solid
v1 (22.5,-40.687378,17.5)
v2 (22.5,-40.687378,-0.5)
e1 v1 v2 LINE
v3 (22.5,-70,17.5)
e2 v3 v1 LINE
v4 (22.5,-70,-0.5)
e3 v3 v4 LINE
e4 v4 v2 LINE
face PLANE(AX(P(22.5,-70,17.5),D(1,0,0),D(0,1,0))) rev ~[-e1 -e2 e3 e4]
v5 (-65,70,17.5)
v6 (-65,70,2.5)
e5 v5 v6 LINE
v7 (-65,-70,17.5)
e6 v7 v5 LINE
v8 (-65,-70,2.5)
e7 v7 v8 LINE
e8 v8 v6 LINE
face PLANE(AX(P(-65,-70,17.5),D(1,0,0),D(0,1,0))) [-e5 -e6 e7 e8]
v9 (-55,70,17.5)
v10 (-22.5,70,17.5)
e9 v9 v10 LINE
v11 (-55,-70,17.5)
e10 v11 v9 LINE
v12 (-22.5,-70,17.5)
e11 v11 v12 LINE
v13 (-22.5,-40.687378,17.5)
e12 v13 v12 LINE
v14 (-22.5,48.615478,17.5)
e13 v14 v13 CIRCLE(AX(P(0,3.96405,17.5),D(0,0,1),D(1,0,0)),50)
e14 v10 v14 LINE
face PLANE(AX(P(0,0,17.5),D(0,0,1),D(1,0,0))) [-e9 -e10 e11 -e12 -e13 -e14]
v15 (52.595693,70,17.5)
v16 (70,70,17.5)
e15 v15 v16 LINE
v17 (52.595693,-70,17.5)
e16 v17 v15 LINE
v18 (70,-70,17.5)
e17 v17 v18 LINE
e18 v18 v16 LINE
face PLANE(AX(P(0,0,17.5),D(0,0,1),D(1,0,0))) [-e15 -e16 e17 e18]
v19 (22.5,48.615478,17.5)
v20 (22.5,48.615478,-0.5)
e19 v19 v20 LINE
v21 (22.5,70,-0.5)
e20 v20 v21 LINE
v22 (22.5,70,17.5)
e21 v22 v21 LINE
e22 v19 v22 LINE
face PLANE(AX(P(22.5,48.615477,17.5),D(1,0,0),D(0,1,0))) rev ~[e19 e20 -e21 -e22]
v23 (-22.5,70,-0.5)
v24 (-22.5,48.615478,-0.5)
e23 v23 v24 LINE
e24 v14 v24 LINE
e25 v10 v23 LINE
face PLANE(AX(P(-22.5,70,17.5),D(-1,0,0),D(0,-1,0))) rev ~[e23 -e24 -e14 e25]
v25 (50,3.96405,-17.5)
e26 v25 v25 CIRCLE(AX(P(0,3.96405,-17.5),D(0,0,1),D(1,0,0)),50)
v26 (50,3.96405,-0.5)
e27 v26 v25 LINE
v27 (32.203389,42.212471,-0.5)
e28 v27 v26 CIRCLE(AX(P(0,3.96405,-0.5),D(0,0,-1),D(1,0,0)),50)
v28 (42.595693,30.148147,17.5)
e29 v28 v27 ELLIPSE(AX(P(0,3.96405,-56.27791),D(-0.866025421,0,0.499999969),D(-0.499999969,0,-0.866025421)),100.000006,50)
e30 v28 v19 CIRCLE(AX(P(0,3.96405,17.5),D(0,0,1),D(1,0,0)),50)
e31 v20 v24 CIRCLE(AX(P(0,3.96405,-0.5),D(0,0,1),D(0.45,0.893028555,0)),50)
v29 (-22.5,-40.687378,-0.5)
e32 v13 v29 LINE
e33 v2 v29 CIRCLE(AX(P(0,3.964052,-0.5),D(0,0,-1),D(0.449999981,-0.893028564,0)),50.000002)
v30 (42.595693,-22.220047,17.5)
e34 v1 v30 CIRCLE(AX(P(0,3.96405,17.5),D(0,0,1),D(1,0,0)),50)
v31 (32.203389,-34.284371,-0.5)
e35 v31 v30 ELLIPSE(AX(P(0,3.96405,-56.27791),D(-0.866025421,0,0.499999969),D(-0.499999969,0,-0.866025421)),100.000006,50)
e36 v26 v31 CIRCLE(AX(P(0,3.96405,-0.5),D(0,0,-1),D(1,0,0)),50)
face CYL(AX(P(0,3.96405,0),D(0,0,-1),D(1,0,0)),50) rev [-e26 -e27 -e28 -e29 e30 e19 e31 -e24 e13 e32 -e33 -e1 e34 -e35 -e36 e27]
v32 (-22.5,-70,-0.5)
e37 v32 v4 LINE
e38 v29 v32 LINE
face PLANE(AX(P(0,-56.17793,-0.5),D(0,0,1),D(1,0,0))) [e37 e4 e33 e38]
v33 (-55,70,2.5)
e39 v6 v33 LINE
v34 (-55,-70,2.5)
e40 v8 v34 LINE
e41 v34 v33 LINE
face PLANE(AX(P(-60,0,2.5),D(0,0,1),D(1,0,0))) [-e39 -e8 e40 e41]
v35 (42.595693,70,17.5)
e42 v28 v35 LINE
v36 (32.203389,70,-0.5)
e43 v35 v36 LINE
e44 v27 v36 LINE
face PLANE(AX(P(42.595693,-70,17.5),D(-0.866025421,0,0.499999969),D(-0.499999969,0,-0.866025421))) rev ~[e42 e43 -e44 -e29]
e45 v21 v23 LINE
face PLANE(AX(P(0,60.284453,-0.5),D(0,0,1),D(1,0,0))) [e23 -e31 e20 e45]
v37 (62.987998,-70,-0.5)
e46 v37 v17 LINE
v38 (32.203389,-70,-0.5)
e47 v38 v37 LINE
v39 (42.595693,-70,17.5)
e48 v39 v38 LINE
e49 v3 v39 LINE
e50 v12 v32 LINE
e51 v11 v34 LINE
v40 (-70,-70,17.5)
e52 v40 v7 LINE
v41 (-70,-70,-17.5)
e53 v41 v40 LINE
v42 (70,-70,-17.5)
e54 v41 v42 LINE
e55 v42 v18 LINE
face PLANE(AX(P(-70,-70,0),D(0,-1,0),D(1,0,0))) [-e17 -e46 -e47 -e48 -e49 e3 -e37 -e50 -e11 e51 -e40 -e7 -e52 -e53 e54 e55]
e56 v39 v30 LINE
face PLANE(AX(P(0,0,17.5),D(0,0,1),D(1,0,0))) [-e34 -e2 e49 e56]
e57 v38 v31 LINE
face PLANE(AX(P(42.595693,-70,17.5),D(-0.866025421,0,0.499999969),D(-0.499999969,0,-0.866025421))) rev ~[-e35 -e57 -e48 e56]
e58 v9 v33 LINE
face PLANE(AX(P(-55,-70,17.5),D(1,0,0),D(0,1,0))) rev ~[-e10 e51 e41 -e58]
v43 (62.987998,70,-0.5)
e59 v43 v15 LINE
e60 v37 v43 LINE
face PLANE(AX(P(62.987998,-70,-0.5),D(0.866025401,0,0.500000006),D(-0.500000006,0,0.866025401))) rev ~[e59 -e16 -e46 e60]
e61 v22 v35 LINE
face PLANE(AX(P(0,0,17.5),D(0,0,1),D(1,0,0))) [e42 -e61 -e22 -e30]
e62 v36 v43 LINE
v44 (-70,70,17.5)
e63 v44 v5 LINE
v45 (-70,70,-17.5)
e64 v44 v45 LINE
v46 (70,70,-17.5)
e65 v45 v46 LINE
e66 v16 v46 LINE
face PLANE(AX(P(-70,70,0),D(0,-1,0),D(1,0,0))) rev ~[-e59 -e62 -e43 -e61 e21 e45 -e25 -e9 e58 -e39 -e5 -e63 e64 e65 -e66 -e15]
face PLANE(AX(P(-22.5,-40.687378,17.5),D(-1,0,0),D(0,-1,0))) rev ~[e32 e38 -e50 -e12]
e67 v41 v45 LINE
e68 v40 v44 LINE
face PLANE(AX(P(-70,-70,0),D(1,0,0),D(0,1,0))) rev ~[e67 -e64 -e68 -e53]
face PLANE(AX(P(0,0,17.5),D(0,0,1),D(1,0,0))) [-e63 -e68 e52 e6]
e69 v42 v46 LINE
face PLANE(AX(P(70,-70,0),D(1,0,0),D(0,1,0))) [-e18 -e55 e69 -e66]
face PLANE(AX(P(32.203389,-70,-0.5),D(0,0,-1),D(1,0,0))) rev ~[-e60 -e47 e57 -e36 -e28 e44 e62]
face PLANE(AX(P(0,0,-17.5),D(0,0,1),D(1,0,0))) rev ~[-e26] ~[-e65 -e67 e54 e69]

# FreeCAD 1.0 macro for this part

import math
import FreeCAD as App
import Part
import Sketcher

V = App.Vector
Q = App.Units.Quantity


def add_polygon(sketch, points):
    """Adds a closed chain of lines whose ends are joined by coincident constraints."""
    first, n = sketch.GeometryCount, len(points)
    for a, b in zip(points, points[1:] + points[:1]):
        sketch.addGeometry(Part.LineSegment(App.Vector(*a, 0), App.Vector(*b, 0)), False)
    for i in range(n):
        sketch.addConstraint(Sketcher.Constraint("Coincident", first + i, 2, first + (i + 1) % n, 1))

doc = App.newDocument("Part")
body = doc.addObject("PartDesign::Body", "Body")

sketch1 = body.newObject("Sketcher::SketchObject", "Sketch")
sketch1.AttachmentSupport = (doc.getObject("XY_Plane"), [""])
sketch1.MapMode = "FlatFace"
add_polygon(sketch1, [(-70, 70), (-70, -70), (70, -70), (70, 70)])
sketch1.addGeometry(Part.Circle(V(0, 3.96405, 0), V(0, 0, 1), 50), False)
sketch1.addConstraint([
    Sketcher.Constraint("Vertical", 0),
    Sketcher.Constraint("Horizontal", 1),
    Sketcher.Constraint("Vertical", 2),
    Sketcher.Constraint("Horizontal", 3),
    Sketcher.Constraint("Symmetric", 0, 2, 2, 2, -1, 1),
    Sketcher.Constraint("PointOnObject", 4, 3, -2),
    Sketcher.Constraint("Equal", 3, 0),
    Sketcher.Constraint("Diameter", 4, Q("100 mm")),
    Sketcher.Constraint("DistanceX", 1, 1, 1, 2, Q("140 mm")),
    Sketcher.Constraint("DistanceY", -1, 1, 4, 3, Q("3.96405 mm")),
])
pad1 = body.newObject("PartDesign::Pad", "Pad")
pad1.Profile = sketch1
pad1.Length = 35
pad1.Midplane = True

sketch2 = body.newObject("Sketcher::SketchObject", "Sketch001")
sketch2.AttachmentSupport = (doc.getObject("XY_Plane"), [""])
sketch2.MapMode = "FlatFace"
sketch2.AttachmentOffset = App.Placement(V(0, 0, 17.5), App.Rotation())
add_polygon(sketch2, [(-65, 70), (-65, -70), (-55, -70), (-55, 70)])
sketch2.addConstraint([
    Sketcher.Constraint("Vertical", 0),
    Sketcher.Constraint("Horizontal", 1),
    Sketcher.Constraint("Vertical", 2),
    Sketcher.Constraint("Horizontal", 3),
    Sketcher.Constraint("DistanceX", 1, 1, 1, 2, Q("10 mm")),
    Sketcher.Constraint("DistanceY", 0, 2, 0, 1, Q("140 mm")),
    Sketcher.Constraint("DistanceX", 0, 2, -1, 1, Q("65 mm")),
    Sketcher.Constraint("DistanceY", 0, 2, -1, 1, Q("70 mm")),
])
pocket1 = body.newObject("PartDesign::Pocket", "Pocket")
pocket1.Profile = sketch2
pocket1.Length = 15

sketch3 = body.newObject("Sketcher::SketchObject", "Sketch002")
sketch3.AttachmentSupport = (doc.getObject("XY_Plane"), [""])
sketch3.MapMode = "FlatFace"
sketch3.AttachmentOffset = App.Placement(V(0, 0, 17.5), App.Rotation())
sketch3.addGeometry([
    Part.LineSegment(V(22.5, -70, 0), V(22.5, -40.687378, 0)),
    Part.ArcOfCircle(Part.Circle(V(0, 3.964052, 0), V(0, 0, 1), 50.000002), math.radians(-116.743683), math.radians(-63.256317)),
    Part.LineSegment(V(-22.5, -40.687378, 0), V(-22.5, -70, 0)),
    Part.LineSegment(V(-22.5, -70, 0), V(22.5, -70, 0)),
    Part.LineSegment(V(22.5, 48.615477, 0), V(22.5, 70, 0)),
    Part.LineSegment(V(22.5, 70, 0), V(-22.5, 70, 0)),
    Part.LineSegment(V(-22.5, 70, 0), V(-22.5, 48.615477, 0)),
    Part.ArcOfCircle(Part.Circle(V(0, 3.964056, 0), V(0, 0, 1), 49.999994), math.radians(63.256312), math.radians(116.743688)),
], False)
sketch3.addConstraint([
    Sketcher.Constraint("Coincident", 0, 2, 1, 2),
    Sketcher.Constraint("Coincident", 1, 1, 2, 1),
    Sketcher.Constraint("Coincident", 2, 2, 3, 1),
    Sketcher.Constraint("Coincident", 3, 2, 0, 1),
    Sketcher.Constraint("Coincident", 4, 2, 5, 1),
    Sketcher.Constraint("Coincident", 5, 2, 6, 1),
    Sketcher.Constraint("Coincident", 6, 2, 7, 2),
    Sketcher.Constraint("Coincident", 7, 1, 4, 1),
    Sketcher.Constraint("Vertical", 0),
    Sketcher.Constraint("Vertical", 2),
    Sketcher.Constraint("Horizontal", 3),
    Sketcher.Constraint("Vertical", 4),
    Sketcher.Constraint("Horizontal", 5),
    Sketcher.Constraint("Vertical", 6),
    Sketcher.Constraint("Coincident", 7, 3, 1, 3),
    Sketcher.Constraint("Symmetric", 2, 2, 4, 2, -1, 1),
    Sketcher.Constraint("Symmetric", 0, 2, 1, 1, -2),
    Sketcher.Constraint("Horizontal", 6, 2, 7, 1),
    Sketcher.Constraint("DistanceX", 3, 1, 3, 2, Q("45 mm")),
    Sketcher.Constraint("DistanceY", 2, 2, -1, 1, Q("70 mm")),
    Sketcher.Constraint("Radius", 1, Q("50.000002 mm")),
    Sketcher.Constraint("Radius", 7, Q("49.999994 mm")),
    Sketcher.Constraint("DistanceY", 0, 1, 0, 2, Q("29.312622 mm")),
])
pocket2 = body.newObject("PartDesign::Pocket", "Pocket001")
pocket2.Profile = sketch3
pocket2.Length = 18

sketch4 = body.newObject("Sketcher::SketchObject", "Sketch003")
sketch4.AttachmentSupport = (doc.getObject("XZ_Plane"), [""])
sketch4.MapMode = "FlatFace"
sketch4.AttachmentOffset = App.Placement(V(0, 0, 70), App.Rotation())
add_polygon(sketch4, [(52.595693, 17.5), (42.595693, 17.5), (32.203389, -0.5), (62.987998, -0.5)])
sketch4.addConstraint([
    Sketcher.Constraint("Horizontal", 0),
    Sketcher.Constraint("Horizontal", 2),
    Sketcher.Constraint("Equal", 1, 3),
    Sketcher.Constraint("DistanceX", 0, 2, 0, 1, Q("10 mm")),
    Sketcher.Constraint("Angle", 1, Q("-119.999998 deg")),
    Sketcher.Constraint("DistanceY", 1, 2, 0, 2, Q("18 mm")),
    Sketcher.Constraint("DistanceY", -1, 1, 0, 2, Q("17.5 mm")),
    Sketcher.Constraint("DistanceX", -1, 1, 1, 2, Q("32.203389 mm")),
])
pocket3 = body.newObject("PartDesign::Pocket", "Pocket002")
pocket3.Profile = sketch4
pocket3.Length = 172.6

doc.recompute()
